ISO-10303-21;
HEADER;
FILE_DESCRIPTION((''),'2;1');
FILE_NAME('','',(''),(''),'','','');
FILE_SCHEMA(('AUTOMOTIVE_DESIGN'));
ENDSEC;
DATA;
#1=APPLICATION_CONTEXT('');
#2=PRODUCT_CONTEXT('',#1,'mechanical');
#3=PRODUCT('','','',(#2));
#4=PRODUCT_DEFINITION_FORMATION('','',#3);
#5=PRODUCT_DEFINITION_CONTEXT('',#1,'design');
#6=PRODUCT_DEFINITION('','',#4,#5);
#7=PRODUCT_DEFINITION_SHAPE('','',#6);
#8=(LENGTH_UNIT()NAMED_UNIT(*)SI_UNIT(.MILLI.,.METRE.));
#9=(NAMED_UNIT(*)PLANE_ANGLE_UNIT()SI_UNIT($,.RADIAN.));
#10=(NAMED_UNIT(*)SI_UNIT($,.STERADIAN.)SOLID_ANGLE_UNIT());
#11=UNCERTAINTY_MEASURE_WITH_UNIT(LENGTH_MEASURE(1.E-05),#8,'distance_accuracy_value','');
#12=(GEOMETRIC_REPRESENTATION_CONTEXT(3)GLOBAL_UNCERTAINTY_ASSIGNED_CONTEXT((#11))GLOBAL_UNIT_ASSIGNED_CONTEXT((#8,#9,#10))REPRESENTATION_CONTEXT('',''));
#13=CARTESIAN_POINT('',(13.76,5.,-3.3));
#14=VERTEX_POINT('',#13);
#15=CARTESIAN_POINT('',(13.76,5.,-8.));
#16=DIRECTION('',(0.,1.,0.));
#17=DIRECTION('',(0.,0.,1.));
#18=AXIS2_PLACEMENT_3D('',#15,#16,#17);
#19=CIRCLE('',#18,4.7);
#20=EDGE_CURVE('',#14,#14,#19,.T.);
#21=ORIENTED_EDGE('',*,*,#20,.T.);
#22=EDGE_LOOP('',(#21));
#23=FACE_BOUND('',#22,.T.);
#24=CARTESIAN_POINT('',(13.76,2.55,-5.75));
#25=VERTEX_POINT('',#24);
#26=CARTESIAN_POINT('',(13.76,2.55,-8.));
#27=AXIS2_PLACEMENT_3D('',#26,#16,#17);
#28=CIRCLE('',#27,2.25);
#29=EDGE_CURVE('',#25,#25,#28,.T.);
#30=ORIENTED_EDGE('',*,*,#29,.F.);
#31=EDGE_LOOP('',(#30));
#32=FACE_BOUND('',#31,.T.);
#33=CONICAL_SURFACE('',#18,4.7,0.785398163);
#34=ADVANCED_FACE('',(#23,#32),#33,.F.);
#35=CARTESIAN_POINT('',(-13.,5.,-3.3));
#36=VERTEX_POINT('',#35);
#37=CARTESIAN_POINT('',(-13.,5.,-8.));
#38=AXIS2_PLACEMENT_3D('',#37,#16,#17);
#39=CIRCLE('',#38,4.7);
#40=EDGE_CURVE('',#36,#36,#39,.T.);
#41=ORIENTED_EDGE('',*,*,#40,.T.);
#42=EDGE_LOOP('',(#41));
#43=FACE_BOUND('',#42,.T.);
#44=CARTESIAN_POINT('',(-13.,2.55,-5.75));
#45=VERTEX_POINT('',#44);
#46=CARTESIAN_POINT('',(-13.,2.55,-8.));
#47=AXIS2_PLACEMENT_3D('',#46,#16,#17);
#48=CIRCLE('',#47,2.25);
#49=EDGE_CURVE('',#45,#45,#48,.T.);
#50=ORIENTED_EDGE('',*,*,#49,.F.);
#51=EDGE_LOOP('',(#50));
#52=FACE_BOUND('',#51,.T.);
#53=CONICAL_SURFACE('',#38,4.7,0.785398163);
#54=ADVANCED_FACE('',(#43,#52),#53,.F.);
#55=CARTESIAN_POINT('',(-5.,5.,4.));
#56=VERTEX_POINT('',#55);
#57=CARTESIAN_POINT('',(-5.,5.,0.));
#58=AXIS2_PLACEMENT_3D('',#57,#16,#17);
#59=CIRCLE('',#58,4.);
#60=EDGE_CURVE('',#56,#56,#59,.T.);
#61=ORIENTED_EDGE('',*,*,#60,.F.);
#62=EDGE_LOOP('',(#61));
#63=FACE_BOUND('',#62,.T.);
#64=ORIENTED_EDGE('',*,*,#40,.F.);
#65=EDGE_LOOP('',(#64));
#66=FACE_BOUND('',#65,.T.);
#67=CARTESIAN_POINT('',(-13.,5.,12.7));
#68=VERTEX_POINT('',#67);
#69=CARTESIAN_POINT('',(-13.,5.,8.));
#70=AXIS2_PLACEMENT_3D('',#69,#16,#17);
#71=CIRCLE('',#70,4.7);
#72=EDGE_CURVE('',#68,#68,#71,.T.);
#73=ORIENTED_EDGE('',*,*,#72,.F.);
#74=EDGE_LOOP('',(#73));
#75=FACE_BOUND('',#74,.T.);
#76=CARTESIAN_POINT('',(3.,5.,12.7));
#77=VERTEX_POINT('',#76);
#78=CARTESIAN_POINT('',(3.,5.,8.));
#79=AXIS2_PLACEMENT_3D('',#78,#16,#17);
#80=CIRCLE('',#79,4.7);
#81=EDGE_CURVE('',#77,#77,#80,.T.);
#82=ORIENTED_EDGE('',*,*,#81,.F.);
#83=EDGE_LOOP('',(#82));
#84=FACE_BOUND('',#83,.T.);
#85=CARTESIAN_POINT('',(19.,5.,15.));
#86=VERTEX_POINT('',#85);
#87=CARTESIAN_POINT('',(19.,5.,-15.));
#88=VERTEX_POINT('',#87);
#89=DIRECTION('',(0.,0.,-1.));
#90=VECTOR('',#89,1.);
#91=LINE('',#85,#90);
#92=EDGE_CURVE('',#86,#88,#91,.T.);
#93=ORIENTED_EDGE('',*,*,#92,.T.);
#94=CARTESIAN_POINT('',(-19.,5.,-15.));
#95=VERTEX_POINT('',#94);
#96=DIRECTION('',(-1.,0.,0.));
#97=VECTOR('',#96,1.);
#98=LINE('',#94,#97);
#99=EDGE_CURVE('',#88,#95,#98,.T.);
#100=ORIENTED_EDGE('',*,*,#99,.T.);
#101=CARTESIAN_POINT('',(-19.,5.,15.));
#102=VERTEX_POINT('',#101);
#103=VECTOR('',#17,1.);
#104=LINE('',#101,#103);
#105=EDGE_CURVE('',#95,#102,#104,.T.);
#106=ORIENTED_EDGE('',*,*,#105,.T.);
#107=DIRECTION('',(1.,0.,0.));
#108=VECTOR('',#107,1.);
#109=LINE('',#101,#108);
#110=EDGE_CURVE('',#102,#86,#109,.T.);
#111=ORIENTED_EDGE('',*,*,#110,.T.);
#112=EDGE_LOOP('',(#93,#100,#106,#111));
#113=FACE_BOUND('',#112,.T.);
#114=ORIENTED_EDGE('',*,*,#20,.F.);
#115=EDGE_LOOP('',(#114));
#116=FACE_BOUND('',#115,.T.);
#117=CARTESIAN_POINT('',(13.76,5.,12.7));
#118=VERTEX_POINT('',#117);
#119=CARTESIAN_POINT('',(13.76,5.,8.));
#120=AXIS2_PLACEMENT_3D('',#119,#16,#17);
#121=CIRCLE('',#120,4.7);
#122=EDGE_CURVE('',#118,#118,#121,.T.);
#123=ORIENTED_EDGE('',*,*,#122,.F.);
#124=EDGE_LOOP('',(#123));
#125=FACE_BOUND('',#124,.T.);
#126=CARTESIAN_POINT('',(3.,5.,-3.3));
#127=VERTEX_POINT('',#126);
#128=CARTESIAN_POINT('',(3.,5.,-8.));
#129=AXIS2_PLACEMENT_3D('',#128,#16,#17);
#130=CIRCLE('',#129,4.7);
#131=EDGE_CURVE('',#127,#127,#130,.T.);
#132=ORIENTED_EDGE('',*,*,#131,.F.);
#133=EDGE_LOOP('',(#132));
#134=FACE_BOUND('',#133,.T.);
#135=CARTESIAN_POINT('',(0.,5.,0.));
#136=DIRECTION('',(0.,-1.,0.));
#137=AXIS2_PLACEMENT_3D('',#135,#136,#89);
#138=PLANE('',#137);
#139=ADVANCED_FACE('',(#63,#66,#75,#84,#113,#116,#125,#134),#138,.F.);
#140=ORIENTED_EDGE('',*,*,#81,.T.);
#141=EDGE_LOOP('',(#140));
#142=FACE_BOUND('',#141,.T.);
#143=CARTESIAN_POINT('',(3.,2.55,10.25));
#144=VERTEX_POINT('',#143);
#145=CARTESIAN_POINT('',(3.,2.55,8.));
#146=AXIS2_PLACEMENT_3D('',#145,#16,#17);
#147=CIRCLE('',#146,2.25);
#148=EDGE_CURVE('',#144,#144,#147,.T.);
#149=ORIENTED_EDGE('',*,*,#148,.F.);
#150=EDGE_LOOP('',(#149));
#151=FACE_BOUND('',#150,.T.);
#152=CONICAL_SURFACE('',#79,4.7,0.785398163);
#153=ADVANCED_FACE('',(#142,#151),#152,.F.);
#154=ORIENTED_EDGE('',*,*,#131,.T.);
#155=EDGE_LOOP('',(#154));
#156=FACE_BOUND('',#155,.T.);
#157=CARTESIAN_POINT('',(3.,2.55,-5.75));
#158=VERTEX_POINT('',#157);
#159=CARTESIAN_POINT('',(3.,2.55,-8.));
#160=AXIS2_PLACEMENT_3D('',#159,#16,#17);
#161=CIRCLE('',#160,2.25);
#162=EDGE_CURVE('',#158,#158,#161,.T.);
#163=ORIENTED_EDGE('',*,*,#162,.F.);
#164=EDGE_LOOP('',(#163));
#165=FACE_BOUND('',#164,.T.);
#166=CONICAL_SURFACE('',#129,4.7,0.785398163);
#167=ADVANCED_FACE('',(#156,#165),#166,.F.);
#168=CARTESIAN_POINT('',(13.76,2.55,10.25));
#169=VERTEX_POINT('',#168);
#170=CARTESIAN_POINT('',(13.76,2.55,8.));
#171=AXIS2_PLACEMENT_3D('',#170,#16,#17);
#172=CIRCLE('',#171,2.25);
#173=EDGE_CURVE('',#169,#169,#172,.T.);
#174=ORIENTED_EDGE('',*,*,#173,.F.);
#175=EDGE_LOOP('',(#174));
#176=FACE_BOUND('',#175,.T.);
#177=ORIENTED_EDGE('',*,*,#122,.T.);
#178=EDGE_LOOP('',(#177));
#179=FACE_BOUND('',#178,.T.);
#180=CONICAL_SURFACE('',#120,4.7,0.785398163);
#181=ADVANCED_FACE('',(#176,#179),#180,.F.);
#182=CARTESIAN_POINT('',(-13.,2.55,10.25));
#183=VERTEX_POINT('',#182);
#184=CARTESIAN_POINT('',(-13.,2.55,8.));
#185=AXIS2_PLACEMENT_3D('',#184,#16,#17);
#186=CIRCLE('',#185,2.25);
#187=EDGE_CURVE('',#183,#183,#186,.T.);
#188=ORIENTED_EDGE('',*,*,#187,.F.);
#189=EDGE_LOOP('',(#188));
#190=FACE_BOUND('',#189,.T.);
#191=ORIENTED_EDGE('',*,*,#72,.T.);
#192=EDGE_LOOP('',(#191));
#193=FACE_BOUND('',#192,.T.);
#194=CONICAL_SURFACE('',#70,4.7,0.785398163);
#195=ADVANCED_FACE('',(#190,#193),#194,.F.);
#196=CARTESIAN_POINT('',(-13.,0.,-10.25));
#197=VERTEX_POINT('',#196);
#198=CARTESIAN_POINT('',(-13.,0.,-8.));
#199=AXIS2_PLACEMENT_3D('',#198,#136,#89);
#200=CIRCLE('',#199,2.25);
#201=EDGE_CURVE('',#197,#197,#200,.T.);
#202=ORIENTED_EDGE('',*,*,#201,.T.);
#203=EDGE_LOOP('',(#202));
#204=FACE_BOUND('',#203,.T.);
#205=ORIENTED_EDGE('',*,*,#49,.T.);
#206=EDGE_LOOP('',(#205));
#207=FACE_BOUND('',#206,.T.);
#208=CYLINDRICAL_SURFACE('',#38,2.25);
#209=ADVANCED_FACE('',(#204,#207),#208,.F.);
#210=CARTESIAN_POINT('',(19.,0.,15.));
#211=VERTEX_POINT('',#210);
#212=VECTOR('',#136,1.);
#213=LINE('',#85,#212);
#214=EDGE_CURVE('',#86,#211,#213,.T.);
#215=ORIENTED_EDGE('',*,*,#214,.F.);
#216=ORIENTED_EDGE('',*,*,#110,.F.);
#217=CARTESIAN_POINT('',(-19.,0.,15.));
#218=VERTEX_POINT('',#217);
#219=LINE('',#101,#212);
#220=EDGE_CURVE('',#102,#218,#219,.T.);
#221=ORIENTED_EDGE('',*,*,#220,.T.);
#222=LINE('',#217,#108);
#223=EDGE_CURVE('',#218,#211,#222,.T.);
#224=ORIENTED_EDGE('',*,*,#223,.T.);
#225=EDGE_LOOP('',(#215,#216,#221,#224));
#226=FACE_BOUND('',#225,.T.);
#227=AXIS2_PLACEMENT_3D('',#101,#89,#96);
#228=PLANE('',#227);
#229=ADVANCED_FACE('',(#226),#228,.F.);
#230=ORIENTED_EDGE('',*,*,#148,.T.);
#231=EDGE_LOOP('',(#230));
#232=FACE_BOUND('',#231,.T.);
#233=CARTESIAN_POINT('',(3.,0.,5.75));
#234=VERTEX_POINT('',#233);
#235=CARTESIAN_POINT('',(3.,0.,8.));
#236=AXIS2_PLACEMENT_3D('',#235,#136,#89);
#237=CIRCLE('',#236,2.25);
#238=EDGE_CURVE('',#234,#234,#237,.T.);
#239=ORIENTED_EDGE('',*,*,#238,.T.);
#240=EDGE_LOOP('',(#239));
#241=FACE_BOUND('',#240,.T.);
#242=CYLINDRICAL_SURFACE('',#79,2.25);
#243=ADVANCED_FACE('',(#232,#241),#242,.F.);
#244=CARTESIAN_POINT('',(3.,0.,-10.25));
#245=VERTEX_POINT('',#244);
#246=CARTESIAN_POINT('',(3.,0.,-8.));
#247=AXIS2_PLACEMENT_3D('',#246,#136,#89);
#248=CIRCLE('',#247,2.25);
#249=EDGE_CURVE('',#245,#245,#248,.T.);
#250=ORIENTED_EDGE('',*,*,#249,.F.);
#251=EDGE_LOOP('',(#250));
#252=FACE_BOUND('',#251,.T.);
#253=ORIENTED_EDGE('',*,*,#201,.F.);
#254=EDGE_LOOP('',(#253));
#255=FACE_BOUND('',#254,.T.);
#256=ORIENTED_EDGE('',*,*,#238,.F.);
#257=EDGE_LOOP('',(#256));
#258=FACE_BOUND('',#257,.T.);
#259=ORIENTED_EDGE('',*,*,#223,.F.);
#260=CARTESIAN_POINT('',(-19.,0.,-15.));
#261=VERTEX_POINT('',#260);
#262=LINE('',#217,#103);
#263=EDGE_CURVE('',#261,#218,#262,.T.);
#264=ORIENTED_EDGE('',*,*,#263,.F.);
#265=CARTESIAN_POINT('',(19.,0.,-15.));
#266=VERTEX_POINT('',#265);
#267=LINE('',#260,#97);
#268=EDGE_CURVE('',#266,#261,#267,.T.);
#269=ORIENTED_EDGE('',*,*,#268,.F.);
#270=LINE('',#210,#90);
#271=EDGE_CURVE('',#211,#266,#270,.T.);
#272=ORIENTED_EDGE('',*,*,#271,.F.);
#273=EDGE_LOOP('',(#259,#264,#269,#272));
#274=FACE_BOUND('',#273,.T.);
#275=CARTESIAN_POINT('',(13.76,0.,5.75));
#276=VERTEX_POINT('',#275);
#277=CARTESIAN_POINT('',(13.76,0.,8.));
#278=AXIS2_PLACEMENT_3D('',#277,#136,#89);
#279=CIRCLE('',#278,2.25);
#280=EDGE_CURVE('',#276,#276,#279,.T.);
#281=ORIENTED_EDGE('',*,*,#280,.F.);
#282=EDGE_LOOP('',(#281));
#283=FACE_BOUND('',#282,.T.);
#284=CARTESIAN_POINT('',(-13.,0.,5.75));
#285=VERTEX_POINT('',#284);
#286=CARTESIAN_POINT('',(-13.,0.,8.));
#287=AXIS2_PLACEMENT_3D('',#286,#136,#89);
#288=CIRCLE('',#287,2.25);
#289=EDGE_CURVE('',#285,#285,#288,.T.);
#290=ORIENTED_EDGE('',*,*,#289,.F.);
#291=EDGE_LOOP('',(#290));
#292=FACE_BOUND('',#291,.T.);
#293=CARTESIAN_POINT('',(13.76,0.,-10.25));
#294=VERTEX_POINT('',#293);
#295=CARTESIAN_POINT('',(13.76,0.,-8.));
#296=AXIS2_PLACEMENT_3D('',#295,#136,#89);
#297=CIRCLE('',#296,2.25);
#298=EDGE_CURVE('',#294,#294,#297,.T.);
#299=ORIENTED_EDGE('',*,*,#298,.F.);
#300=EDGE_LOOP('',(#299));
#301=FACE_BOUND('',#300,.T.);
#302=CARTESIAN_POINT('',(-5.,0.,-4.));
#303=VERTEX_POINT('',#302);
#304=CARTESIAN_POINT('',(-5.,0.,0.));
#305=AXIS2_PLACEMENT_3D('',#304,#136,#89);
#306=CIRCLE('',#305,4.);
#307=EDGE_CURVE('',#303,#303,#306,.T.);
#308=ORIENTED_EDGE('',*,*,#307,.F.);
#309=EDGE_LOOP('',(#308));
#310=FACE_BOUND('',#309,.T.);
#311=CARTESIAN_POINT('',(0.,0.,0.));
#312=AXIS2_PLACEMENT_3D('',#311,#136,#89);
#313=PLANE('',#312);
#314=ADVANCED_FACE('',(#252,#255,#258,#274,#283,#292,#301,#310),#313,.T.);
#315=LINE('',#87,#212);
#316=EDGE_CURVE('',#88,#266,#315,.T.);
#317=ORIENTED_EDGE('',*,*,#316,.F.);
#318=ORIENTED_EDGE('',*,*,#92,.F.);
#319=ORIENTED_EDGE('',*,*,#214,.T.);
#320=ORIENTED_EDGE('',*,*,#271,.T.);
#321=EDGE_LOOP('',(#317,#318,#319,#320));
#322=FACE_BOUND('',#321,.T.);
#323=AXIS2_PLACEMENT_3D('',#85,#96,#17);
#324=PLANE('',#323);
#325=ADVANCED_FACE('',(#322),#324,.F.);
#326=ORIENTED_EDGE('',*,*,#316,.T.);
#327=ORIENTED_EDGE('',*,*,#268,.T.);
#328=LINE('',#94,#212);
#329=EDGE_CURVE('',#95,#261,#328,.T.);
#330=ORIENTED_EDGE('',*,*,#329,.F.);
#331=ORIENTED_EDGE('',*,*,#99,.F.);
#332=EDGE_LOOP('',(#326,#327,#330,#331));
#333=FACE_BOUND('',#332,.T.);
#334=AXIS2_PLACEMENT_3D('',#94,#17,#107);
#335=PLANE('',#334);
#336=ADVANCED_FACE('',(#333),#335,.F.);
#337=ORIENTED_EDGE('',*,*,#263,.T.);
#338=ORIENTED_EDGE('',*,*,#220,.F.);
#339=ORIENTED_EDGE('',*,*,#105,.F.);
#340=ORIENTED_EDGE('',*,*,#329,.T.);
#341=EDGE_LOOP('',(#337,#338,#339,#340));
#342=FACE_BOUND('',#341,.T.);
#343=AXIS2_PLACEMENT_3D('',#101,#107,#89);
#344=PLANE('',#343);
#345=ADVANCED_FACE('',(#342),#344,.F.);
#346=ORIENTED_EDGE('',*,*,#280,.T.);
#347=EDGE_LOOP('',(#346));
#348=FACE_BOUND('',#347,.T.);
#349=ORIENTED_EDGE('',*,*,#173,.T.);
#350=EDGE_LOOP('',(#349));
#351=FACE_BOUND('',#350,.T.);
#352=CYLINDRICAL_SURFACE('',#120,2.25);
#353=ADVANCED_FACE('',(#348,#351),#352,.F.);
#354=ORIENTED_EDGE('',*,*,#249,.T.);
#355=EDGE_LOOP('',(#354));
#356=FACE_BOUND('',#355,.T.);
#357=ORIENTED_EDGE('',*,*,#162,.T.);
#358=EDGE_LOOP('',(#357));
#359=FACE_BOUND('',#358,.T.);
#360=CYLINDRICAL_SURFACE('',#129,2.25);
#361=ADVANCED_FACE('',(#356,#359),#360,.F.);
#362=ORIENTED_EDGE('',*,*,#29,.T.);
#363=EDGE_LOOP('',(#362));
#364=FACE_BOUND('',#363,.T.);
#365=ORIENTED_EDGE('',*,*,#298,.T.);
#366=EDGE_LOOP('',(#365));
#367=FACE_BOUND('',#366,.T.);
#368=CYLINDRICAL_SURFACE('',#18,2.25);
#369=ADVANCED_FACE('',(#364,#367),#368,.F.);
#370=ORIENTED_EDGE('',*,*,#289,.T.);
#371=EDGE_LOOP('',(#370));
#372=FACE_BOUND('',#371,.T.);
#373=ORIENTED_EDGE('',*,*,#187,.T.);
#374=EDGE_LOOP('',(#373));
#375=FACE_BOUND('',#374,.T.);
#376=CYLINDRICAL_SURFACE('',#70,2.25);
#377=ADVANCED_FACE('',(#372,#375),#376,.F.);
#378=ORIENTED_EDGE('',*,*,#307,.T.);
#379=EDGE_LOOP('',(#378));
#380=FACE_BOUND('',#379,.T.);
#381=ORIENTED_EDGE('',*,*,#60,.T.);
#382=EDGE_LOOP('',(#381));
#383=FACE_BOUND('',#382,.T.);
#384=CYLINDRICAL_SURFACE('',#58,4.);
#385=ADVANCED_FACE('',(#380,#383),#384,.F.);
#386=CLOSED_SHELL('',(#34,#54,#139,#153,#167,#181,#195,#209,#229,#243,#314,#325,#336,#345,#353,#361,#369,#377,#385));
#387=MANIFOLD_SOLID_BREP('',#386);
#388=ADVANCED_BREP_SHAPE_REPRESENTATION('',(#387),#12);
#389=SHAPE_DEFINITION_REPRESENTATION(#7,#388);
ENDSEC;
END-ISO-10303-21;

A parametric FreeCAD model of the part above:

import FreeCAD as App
import Part
import Sketcher

V = App.Vector


def add_polygon(sketch, points):
    """Adds a closed chain of lines whose ends are joined by coincident constraints."""
    first, n = sketch.GeometryCount, len(points)
    for a, b in zip(points, points[1:] + points[:1]):
        sketch.addGeometry(Part.LineSegment(App.Vector(*a, 0), App.Vector(*b, 0)), False)
    for i in range(n):
        sketch.addConstraint(Sketcher.Constraint("Coincident", first + i, 2, first + (i + 1) % n, 1))

doc = App.newDocument("Part")
body = doc.addObject("PartDesign::Body", "Body")

# Sketch on XZ plane
sketch1 = body.newObject("Sketcher::SketchObject", "Sketch")
sketch1.AttachmentSupport = (doc.getObject("XZ_Plane"), [""])
sketch1.MapMode = "FlatFace"
add_polygon(sketch1, [(-19, -15), (-19, 15), (19, 15), (19, -15)])  # lines 0-3
sketch1.addConstraint([
    Sketcher.Constraint("Vertical", 0),
    Sketcher.Constraint("Horizontal", 1),
    Sketcher.Constraint("Vertical", 2),
    Sketcher.Constraint("Horizontal", 3),
    Sketcher.Constraint("Symmetric", 0, 2, 2, 2, -1, 1),
    Sketcher.Constraint("DistanceX", 1, 1, 1, 2, 38.0),
    Sketcher.Constraint("DistanceY", 0, 1, 0, 2, 30.0),
])
pad1 = body.newObject("PartDesign::Pad", "Pad")
pad1.Profile = sketch1
pad1.Length = 5
pad1.Reversed = True

# Sketch on XZ plane
sketch2 = body.newObject("Sketcher::SketchObject", "Sketch001")
sketch2.AttachmentSupport = (doc.getObject("XZ_Plane"), [""])
sketch2.MapMode = "FlatFace"
sketch2.AttachmentOffset = App.Placement(V(0, 0, -5), App.Rotation())
sketch2.addGeometry([
    Part.Circle(V(-13, -8, 0), V(0, 0, 1), 2.2),  # 0
    Part.Circle(V(3, -8, 0), V(0, 0, 1), 2.2),  # 1
    Part.Circle(V(3, 8, 0), V(0, 0, 1), 2.2),  # 2
    Part.Circle(V(-13, 8, 0), V(0, 0, 1), 2.2),  # 3
    Part.Circle(V(13.8, -8, 0), V(0, 0, 1), 2.2),  # 4
    Part.Circle(V(13.8, 8, 0), V(0, 0, 1), 2.2),  # 5
], False)
sketch2.addConstraint([
    Sketcher.Constraint("Equal", 0, 1),
    Sketcher.Constraint("Equal", 1, 2),
    Sketcher.Constraint("Equal", 2, 3),
    Sketcher.Constraint("Equal", 3, 4),
    Sketcher.Constraint("Equal", 4, 5),
    Sketcher.Constraint("Symmetric", 1, 3, 2, 3, -1),
    Sketcher.Constraint("Symmetric", 0, 3, 3, 3, -1),
    Sketcher.Constraint("Symmetric", 4, 3, 5, 3, -1),
    Sketcher.Constraint("Horizontal", 0, 3, 1, 3),
    Sketcher.Constraint("Horizontal", 1, 3, 4, 3),
    Sketcher.Constraint("Diameter", 0, 4.5),
    Sketcher.Constraint("DistanceX", 0, 3, -1, 1, 13.0),
    Sketcher.Constraint("DistanceY", 0, 3, -1, 1, 8.0),
    Sketcher.Constraint("DistanceX", -1, 1, 1, 3, 3.0),
    Sketcher.Constraint("DistanceX", -1, 1, 4, 3, 13.76),
])
doc.recompute()
hole = body.newObject("PartDesign::Hole", "Hole")
hole.Profile = sketch2
hole.ThreadType = "None"
hole.Diameter = 4.5
hole.DepthType = "ThroughAll"
hole.HoleCutType = "Countersink"
hole.HoleCutDiameter = 9.4
hole.HoleCutCountersinkAngle = 90
hole.Reversed = True

# Sketch on XZ plane
sketch3 = body.newObject("Sketcher::SketchObject", "Sketch002")
sketch3.AttachmentSupport = (doc.getObject("XZ_Plane"), [""])
sketch3.MapMode = "FlatFace"
sketch3.AttachmentOffset = App.Placement(V(0, 0, -5), App.Rotation())
sketch3.addGeometry(Part.Circle(V(-5, 0, 0), V(0, 0, 1), 4), False)
sketch3.addConstraint([
    Sketcher.Constraint("PointOnObject", 0, 3, -1),
    Sketcher.Constraint("Diameter", 0, 8.0),
    Sketcher.Constraint("DistanceX", 0, 3, -1, 1, 5.0),
])
doc.recompute()
hole2 = body.newObject("PartDesign::Hole", "Hole001")
hole2.Profile = sketch3
hole2.ThreadType = "None"
hole2.Diameter = 8
hole2.DepthType = "ThroughAll"
hole2.Reversed = True

doc.recompute()
